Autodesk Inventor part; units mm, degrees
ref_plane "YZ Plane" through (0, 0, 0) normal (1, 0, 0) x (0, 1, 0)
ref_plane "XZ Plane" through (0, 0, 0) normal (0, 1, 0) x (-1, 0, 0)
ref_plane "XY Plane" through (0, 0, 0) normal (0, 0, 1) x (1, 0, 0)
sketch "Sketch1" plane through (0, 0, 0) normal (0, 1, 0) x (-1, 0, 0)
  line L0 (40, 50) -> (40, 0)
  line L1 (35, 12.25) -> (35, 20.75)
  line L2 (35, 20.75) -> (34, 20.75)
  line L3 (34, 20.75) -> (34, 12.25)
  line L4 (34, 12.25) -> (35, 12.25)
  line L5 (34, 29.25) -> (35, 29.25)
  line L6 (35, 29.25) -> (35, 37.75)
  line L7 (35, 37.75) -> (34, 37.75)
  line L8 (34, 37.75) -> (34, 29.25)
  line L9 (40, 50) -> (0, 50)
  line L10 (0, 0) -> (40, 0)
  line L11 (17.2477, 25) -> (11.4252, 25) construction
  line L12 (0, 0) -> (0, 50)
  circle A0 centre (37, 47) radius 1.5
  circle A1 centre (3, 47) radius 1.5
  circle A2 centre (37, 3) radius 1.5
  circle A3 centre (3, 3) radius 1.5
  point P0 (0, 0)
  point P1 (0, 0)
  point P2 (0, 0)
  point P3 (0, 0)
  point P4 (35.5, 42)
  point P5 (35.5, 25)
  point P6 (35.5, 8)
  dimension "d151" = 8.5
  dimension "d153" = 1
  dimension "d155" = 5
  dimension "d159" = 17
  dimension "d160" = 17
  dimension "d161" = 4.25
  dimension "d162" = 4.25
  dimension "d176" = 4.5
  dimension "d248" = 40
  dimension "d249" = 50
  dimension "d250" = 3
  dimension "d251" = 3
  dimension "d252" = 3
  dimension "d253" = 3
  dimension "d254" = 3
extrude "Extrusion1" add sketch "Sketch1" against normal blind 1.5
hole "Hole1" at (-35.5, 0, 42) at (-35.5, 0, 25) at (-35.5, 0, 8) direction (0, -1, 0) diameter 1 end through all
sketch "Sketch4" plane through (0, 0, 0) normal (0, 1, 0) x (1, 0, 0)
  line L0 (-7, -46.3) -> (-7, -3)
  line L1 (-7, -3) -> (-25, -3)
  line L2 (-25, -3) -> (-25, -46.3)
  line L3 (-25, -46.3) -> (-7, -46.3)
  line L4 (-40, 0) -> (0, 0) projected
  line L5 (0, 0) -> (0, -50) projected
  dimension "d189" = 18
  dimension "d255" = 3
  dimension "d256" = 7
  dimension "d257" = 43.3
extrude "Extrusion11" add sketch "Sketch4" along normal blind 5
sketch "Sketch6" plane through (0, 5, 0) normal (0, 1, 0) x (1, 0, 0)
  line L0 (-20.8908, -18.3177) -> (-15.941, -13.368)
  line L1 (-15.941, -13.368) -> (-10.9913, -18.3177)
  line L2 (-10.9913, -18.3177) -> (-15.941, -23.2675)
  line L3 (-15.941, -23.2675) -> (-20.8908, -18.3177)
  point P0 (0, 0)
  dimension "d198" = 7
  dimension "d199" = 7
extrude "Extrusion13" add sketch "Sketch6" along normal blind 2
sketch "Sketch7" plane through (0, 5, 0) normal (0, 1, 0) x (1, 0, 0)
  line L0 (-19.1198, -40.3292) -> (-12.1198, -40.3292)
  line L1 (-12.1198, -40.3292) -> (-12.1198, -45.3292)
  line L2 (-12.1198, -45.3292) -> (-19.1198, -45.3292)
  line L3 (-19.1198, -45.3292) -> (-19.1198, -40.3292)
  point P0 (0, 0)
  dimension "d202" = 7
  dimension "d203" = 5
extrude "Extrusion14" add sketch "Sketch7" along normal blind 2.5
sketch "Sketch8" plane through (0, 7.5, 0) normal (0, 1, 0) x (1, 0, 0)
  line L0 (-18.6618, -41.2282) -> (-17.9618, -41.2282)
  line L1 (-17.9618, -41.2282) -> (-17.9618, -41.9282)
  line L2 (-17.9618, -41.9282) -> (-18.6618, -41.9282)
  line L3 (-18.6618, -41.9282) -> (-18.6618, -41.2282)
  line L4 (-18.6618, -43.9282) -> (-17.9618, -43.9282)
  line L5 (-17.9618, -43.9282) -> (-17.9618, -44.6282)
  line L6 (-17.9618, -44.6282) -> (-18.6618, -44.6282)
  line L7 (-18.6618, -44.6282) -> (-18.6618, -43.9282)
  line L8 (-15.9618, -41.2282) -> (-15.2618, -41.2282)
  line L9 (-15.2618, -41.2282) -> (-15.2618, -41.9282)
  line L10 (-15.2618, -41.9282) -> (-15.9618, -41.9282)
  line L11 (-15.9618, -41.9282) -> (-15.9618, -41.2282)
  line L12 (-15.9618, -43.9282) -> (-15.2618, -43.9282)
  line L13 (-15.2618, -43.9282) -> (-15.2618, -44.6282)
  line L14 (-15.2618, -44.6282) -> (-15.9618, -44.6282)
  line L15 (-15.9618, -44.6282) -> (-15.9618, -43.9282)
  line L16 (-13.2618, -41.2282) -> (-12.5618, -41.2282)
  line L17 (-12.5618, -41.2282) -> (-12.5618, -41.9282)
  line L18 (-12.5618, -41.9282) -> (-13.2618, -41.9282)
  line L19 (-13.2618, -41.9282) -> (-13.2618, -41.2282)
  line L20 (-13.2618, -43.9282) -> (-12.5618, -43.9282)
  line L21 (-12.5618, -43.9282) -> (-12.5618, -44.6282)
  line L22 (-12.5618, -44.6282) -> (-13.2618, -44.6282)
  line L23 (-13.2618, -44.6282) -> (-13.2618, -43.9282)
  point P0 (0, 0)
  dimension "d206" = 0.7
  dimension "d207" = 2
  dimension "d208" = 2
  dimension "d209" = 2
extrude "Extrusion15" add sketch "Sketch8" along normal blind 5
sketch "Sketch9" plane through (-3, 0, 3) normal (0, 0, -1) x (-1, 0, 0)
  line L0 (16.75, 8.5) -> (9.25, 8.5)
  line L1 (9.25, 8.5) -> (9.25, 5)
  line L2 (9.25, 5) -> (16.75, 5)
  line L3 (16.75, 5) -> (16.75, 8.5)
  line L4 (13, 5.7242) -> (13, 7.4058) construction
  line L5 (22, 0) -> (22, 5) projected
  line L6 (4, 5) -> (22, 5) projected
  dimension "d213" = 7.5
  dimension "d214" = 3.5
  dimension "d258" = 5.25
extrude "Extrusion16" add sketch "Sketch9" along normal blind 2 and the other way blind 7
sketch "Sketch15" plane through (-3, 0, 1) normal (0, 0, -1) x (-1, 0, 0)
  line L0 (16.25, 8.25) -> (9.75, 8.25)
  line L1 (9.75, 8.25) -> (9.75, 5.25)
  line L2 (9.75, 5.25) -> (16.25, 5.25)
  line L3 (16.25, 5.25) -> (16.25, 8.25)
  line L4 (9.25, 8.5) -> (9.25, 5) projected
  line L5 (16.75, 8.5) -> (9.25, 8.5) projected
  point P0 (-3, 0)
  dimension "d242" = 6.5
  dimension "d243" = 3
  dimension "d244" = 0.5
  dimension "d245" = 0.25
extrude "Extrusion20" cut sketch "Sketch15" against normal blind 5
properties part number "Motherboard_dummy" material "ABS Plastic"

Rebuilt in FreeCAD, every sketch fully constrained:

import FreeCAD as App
import Part
import Sketcher
Q = App.Units.Quantity

doc = App.newDocument("Part")
body = doc.addObject("PartDesign::Body", "Body")

sketch1 = body.newObject("Sketcher::SketchObject", "Sketch")
sketch1.AttachmentSupport = (doc.getObject("XZ_Plane"), [""])
sketch1.MapMode = "FlatFace"
sketch1.addGeometry([
    Part.LineSegment(App.Vector(-40, 0, 0), App.Vector(-40, 50, 0)),
    Part.LineSegment(App.Vector(-40, 50, 0), App.Vector(0, 50, 0)),
    Part.LineSegment(App.Vector(0, 50, 0), App.Vector(0, 0, 0)),
    Part.LineSegment(App.Vector(0, 0, 0), App.Vector(-40, 0, 0)),
    Part.Circle(App.Vector(-3, 3, 0), App.Vector(0, 0, 1), 1.5),
    Part.Circle(App.Vector(-37, 3, 0), App.Vector(0, 0, 1), 1.5),
    Part.LineSegment(App.Vector(-35, 20.8, 0), App.Vector(-35, 12.2, 0)),
    Part.LineSegment(App.Vector(-35, 12.2, 0), App.Vector(-34, 12.2, 0)),
    Part.LineSegment(App.Vector(-34, 12.2, 0), App.Vector(-34, 20.8, 0)),
    Part.LineSegment(App.Vector(-34, 20.8, 0), App.Vector(-35, 20.8, 0)),
    Part.Circle(App.Vector(-3, 47, 0), App.Vector(0, 0, 1), 1.5),
    Part.LineSegment(App.Vector(-35, 29.2, 0), App.Vector(-34, 29.2, 0)),
    Part.LineSegment(App.Vector(-34, 29.2, 0), App.Vector(-34, 37.8, 0)),
    Part.LineSegment(App.Vector(-34, 37.8, 0), App.Vector(-35, 37.8, 0)),
    Part.LineSegment(App.Vector(-35, 37.8, 0), App.Vector(-35, 29.2, 0)),
    Part.Circle(App.Vector(-37, 47, 0), App.Vector(0, 0, 1), 1.5),
], False)
sketch1.addConstraint([
    Sketcher.Constraint("Coincident", 0, 2, 1, 1),
    Sketcher.Constraint("Coincident", 1, 2, 2, 1),
    Sketcher.Constraint("Coincident", 2, 2, 3, 1),
    Sketcher.Constraint("Coincident", 3, 2, 0, 1),
    Sketcher.Constraint("Coincident", 6, 2, 7, 1),
    Sketcher.Constraint("Coincident", 7, 2, 8, 1),
    Sketcher.Constraint("Coincident", 8, 2, 9, 1),
    Sketcher.Constraint("Coincident", 9, 2, 6, 1),
    Sketcher.Constraint("Coincident", 11, 2, 12, 1),
    Sketcher.Constraint("Coincident", 12, 2, 13, 1),
    Sketcher.Constraint("Coincident", 13, 2, 14, 1),
    Sketcher.Constraint("Coincident", 14, 2, 11, 1),
    Sketcher.Constraint("Vertical", 0),
    Sketcher.Constraint("Horizontal", 1),
    Sketcher.Constraint("Vertical", 2),
    Sketcher.Constraint("Horizontal", 3),
    Sketcher.Constraint("Vertical", 6),
    Sketcher.Constraint("Horizontal", 7),
    Sketcher.Constraint("Vertical", 8),
    Sketcher.Constraint("Horizontal", 9),
    Sketcher.Constraint("Horizontal", 11),
    Sketcher.Constraint("Vertical", 12),
    Sketcher.Constraint("Horizontal", 13),
    Sketcher.Constraint("Vertical", 14),
    Sketcher.Constraint("Coincident", 2, 2, -1, 1),
    Sketcher.Constraint("Equal", 4, 5),
    Sketcher.Constraint("Equal", 5, 10),
    Sketcher.Constraint("Equal", 10, 15),
    Sketcher.Constraint("Horizontal", 4, 3, 5, 3),
    Sketcher.Constraint("Horizontal", 10, 3, 15, 3),
    Sketcher.Constraint("Vertical", 4, 3, 10, 3),
    Sketcher.Constraint("Vertical", 5, 3, 15, 3),
    Sketcher.Constraint("Vertical", 8, 2, 11, 2),
    Sketcher.Constraint("Vertical", 9, 2, 13, 2),
    Sketcher.Constraint("Equal", 8, 12),
    Sketcher.Constraint("Diameter", 4, Q("3 mm")),
    Sketcher.Constraint("DistanceX", 1, 1, 1, 2, Q("40 mm")),
    Sketcher.Constraint("DistanceX", 7, 1, 7, 2, Q("1 mm")),
    Sketcher.Constraint("DistanceY", 0, 1, 0, 2, Q("50 mm")),
    Sketcher.Constraint("DistanceY", 6, 2, 6, 1, Q("8.5 mm")),
    Sketcher.Constraint("DistanceX", 4, 3, -1, 1, Q("3 mm")),
    Sketcher.Constraint("DistanceY", -1, 1, 4, 3, Q("3 mm")),
    Sketcher.Constraint("DistanceX", 0, 2, 15, 3, Q("3 mm")),
    Sketcher.Constraint("DistanceY", 15, 3, 0, 2, Q("3 mm")),
    Sketcher.Constraint("DistanceX", 3, 2, 6, 2, Q("5 mm")),
    Sketcher.Constraint("DistanceY", 7, 2, 11, 2, Q("17 mm")),
    Sketcher.Constraint("DistanceY", -1, 1, 6, 2, Q("12.25 mm")),
])
pad1 = body.newObject("PartDesign::Pad", "Pad")
pad1.Profile = sketch1
pad1.Length = 1.5

sketch2 = body.newObject("Sketcher::SketchObject", "Sketch001")
sketch2.AttachmentSupport = (doc.getObject("XZ_Plane"), [""])
sketch2.MapMode = "FlatFace"
sketch2.addGeometry([
    Part.Circle(App.Vector(-35.5, 42, 0), App.Vector(0, 0, 1), 0.5),
    Part.Circle(App.Vector(-35.5, 25, 0), App.Vector(0, 0, 1), 0.5),
    Part.Circle(App.Vector(-35.5, 8, 0), App.Vector(0, 0, 1), 0.5),
], False)
sketch2.addConstraint([
    Sketcher.Constraint("Equal", 0, 1),
    Sketcher.Constraint("Equal", 1, 2),
    Sketcher.Constraint("Vertical", 0, 3, 1, 3),
    Sketcher.Constraint("Vertical", 1, 3, 2, 3),
    Sketcher.Constraint("Diameter", 0, Q("1 mm")),
    Sketcher.Constraint("DistanceY", -1, 1, 0, 3, Q("42 mm")),
    Sketcher.Constraint("DistanceY", -1, 1, 1, 3, Q("25 mm")),
    Sketcher.Constraint("DistanceY", -1, 1, 2, 3, Q("8 mm")),
    Sketcher.Constraint("DistanceX", 0, 3, -1, 1, Q("35.5 mm")),
])
doc.recompute()
hole = body.newObject("PartDesign::Hole", "Hole")
hole.Profile = sketch2
hole.ThreadType = "None"
hole.Diameter = 1
hole.DepthType = "ThroughAll"
hole.Reversed = True

sketch3 = body.newObject("Sketcher::SketchObject", "Sketch002")
sketch3.AttachmentSupport = (doc.getObject("XZ_Plane"), [""])
sketch3.MapMode = "FlatFace"
sketch3.addGeometry([
    Part.LineSegment(App.Vector(-25, 46, 0), App.Vector(-7, 46, 0)),
    Part.LineSegment(App.Vector(-7, 46, 0), App.Vector(-7, 3, 0)),
    Part.LineSegment(App.Vector(-7, 3, 0), App.Vector(-25, 3, 0)),
    Part.LineSegment(App.Vector(-25, 3, 0), App.Vector(-25, 46, 0)),
], False)
sketch3.addConstraint([
    Sketcher.Constraint("Coincident", 0, 2, 1, 1),
    Sketcher.Constraint("Coincident", 1, 2, 2, 1),
    Sketcher.Constraint("Coincident", 2, 2, 3, 1),
    Sketcher.Constraint("Coincident", 3, 2, 0, 1),
    Sketcher.Constraint("Horizontal", 0),
    Sketcher.Constraint("Vertical", 1),
    Sketcher.Constraint("Horizontal", 2),
    Sketcher.Constraint("Vertical", 3),
    Sketcher.Constraint("DistanceX", 0, 1, 0, 2, Q("18 mm")),
    Sketcher.Constraint("DistanceY", 1, 2, 1, 1, Q("43.3 mm")),
    Sketcher.Constraint("DistanceX", 0, 2, -1, 1, Q("7 mm")),
    Sketcher.Constraint("DistanceY", -1, 1, 1, 2, Q("3 mm")),
])
pad2 = body.newObject("PartDesign::Pad", "Pad001")
pad2.Profile = sketch3
pad2.Length = 5
pad2.Reversed = True

sketch4 = body.newObject("Sketcher::SketchObject", "Sketch003")
sketch4.AttachmentSupport = (doc.getObject("XZ_Plane"), [""])
sketch4.MapMode = "FlatFace"
sketch4.AttachmentOffset = App.Placement(App.Vector(0, 0, -5), App.Rotation())
sketch4.addGeometry([
    Part.LineSegment(App.Vector(-16, 13, 0), App.Vector(-21, 18, 0)),
    Part.LineSegment(App.Vector(-21, 18, 0), App.Vector(-16, 23, 0)),
    Part.LineSegment(App.Vector(-16, 23, 0), App.Vector(-11, 18, 0)),
    Part.LineSegment(App.Vector(-11, 18, 0), App.Vector(-16, 13, 0)),
], False)
sketch4.addConstraint([
    Sketcher.Constraint("Coincident", 0, 2, 1, 1),
    Sketcher.Constraint("Coincident", 1, 2, 2, 1),
    Sketcher.Constraint("Coincident", 2, 2, 3, 1),
    Sketcher.Constraint("Coincident", 3, 2, 0, 1),
    Sketcher.Constraint("Perpendicular", 0, 1),
    Sketcher.Constraint("Perpendicular", 1, 2),
    Sketcher.Constraint("Perpendicular", 2, 3),
    Sketcher.Constraint("Horizontal", 0, 2, 2, 2),
    Sketcher.Constraint("Vertical", 1, 2, 3, 2),
    Sketcher.Constraint("Distance", 0, Q("7 mm")),
    Sketcher.Constraint("DistanceX", 1, 2, -1, 1, Q("15.941 mm")),
    Sketcher.Constraint("DistanceY", -1, 1, 3, 2, Q("13.368 mm")),
])
pad3 = body.newObject("PartDesign::Pad", "Pad002")
pad3.Profile = sketch4
pad3.Length = 2
pad3.Reversed = True

sketch5 = body.newObject("Sketcher::SketchObject", "Sketch004")
sketch5.AttachmentSupport = (doc.getObject("XZ_Plane"), [""])
sketch5.MapMode = "FlatFace"
sketch5.AttachmentOffset = App.Placement(App.Vector(0, 0, -5), App.Rotation())
sketch5.addGeometry([
    Part.LineSegment(App.Vector(-12, 40, 0), App.Vector(-19, 40, 0)),
    Part.LineSegment(App.Vector(-19, 40, 0), App.Vector(-19, 45, 0)),
    Part.LineSegment(App.Vector(-19, 45, 0), App.Vector(-12, 45, 0)),
    Part.LineSegment(App.Vector(-12, 45, 0), App.Vector(-12, 40, 0)),
], False)
sketch5.addConstraint([
    Sketcher.Constraint("Coincident", 0, 2, 1, 1),
    Sketcher.Constraint("Coincident", 1, 2, 2, 1),
    Sketcher.Constraint("Coincident", 2, 2, 3, 1),
    Sketcher.Constraint("Coincident", 3, 2, 0, 1),
    Sketcher.Constraint("Horizontal", 0),
    Sketcher.Constraint("Vertical", 1),
    Sketcher.Constraint("Horizontal", 2),
    Sketcher.Constraint("Vertical", 3),
    Sketcher.Constraint("DistanceX", 0, 2, 0, 1, Q("7 mm")),
    Sketcher.Constraint("DistanceY", 1, 1, 1, 2, Q("5 mm")),
    Sketcher.Constraint("DistanceX", 0, 2, -1, 1, Q("19.1198 mm")),
    Sketcher.Constraint("DistanceY", -1, 1, 0, 2, Q("40.3292 mm")),
])
pad4 = body.newObject("PartDesign::Pad", "Pad003")
pad4.Profile = sketch5
pad4.Length = 2.5
pad4.Reversed = True

sketch6 = body.newObject("Sketcher::SketchObject", "Sketch005")
sketch6.AttachmentSupport = (doc.getObject("XZ_Plane"), [""])
sketch6.MapMode = "FlatFace"
sketch6.AttachmentOffset = App.Placement(App.Vector(0, 0, -7.5), App.Rotation())
sketch6.addGeometry([
    Part.LineSegment(App.Vector(-18, 41.2, 0), App.Vector(-18.7, 41.2, 0)),
    Part.LineSegment(App.Vector(-18.7, 41.2, 0), App.Vector(-18.7, 41.9, 0)),
    Part.LineSegment(App.Vector(-18.7, 41.9, 0), App.Vector(-18, 41.9, 0)),
    Part.LineSegment(App.Vector(-18, 41.9, 0), App.Vector(-18, 41.2, 0)),
    Part.LineSegment(App.Vector(-18, 43.9, 0), App.Vector(-18.7, 43.9, 0)),
    Part.LineSegment(App.Vector(-18.7, 43.9, 0), App.Vector(-18.7, 44.6, 0)),
    Part.LineSegment(App.Vector(-18.7, 44.6, 0), App.Vector(-18, 44.6, 0)),
    Part.LineSegment(App.Vector(-18, 44.6, 0), App.Vector(-18, 43.9, 0)),
    Part.LineSegment(App.Vector(-15.3, 41.2, 0), App.Vector(-16, 41.2, 0)),
    Part.LineSegment(App.Vector(-16, 41.2, 0), App.Vector(-16, 41.9, 0)),
    Part.LineSegment(App.Vector(-16, 41.9, 0), App.Vector(-15.3, 41.9, 0)),
    Part.LineSegment(App.Vector(-15.3, 41.9, 0), App.Vector(-15.3, 41.2, 0)),
    Part.LineSegment(App.Vector(-15.3, 43.9, 0), App.Vector(-16, 43.9, 0)),
    Part.LineSegment(App.Vector(-16, 43.9, 0), App.Vector(-16, 44.6, 0)),
    Part.LineSegment(App.Vector(-16, 44.6, 0), App.Vector(-15.3, 44.6, 0)),
    Part.LineSegment(App.Vector(-15.3, 44.6, 0), App.Vector(-15.3, 43.9, 0)),
    Part.LineSegment(App.Vector(-12.6, 41.2, 0), App.Vector(-13.3, 41.2, 0)),
    Part.LineSegment(App.Vector(-13.3, 41.2, 0), App.Vector(-13.3, 41.9, 0)),
    Part.LineSegment(App.Vector(-13.3, 41.9, 0), App.Vector(-12.6, 41.9, 0)),
    Part.LineSegment(App.Vector(-12.6, 41.9, 0), App.Vector(-12.6, 41.2, 0)),
    Part.LineSegment(App.Vector(-12.6, 43.9, 0), App.Vector(-13.3, 43.9, 0)),
    Part.LineSegment(App.Vector(-13.3, 43.9, 0), App.Vector(-13.3, 44.6, 0)),
    Part.LineSegment(App.Vector(-13.3, 44.6, 0), App.Vector(-12.6, 44.6, 0)),
    Part.LineSegment(App.Vector(-12.6, 44.6, 0), App.Vector(-12.6, 43.9, 0)),
], False)
sketch6.addConstraint([
    Sketcher.Constraint("Coincident", 0, 2, 1, 1),
    Sketcher.Constraint("Coincident", 1, 2, 2, 1),
    Sketcher.Constraint("Coincident", 2, 2, 3, 1),
    Sketcher.Constraint("Coincident", 3, 2, 0, 1),
    Sketcher.Constraint("Coincident", 4, 2, 5, 1),
    Sketcher.Constraint("Coincident", 5, 2, 6, 1),
    Sketcher.Constraint("Coincident", 6, 2, 7, 1),
    Sketcher.Constraint("Coincident", 7, 2, 4, 1),
    Sketcher.Constraint("Coincident", 8, 2, 9, 1),
    Sketcher.Constraint("Coincident", 9, 2, 10, 1),
    Sketcher.Constraint("Coincident", 10, 2, 11, 1),
    Sketcher.Constraint("Coincident", 11, 2, 8, 1),
    Sketcher.Constraint("Coincident", 12, 2, 13, 1),
    Sketcher.Constraint("Coincident", 13, 2, 14, 1),
    Sketcher.Constraint("Coincident", 14, 2, 15, 1),
    Sketcher.Constraint("Coincident", 15, 2, 12, 1),
    Sketcher.Constraint("Coincident", 16, 2, 17, 1),
    Sketcher.Constraint("Coincident", 17, 2, 18, 1),
    Sketcher.Constraint("Coincident", 18, 2, 19, 1),
    Sketcher.Constraint("Coincident", 19, 2, 16, 1),
    Sketcher.Constraint("Coincident", 20, 2, 21, 1),
    Sketcher.Constraint("Coincident", 21, 2, 22, 1),
    Sketcher.Constraint("Coincident", 22, 2, 23, 1),
    Sketcher.Constraint("Coincident", 23, 2, 20, 1),
    Sketcher.Constraint("Horizontal", 0),
    Sketcher.Constraint("Vertical", 1),
    Sketcher.Constraint("Horizontal", 2),
    Sketcher.Constraint("Vertical", 3),
    Sketcher.Constraint("Horizontal", 4),
    Sketcher.Constraint("Vertical", 5),
    Sketcher.Constraint("Horizontal", 6),
    Sketcher.Constraint("Vertical", 7),
    Sketcher.Constraint("Horizontal", 8),
    Sketcher.Constraint("Vertical", 9),
    Sketcher.Constraint("Horizontal", 10),
    Sketcher.Constraint("Vertical", 11),
    Sketcher.Constraint("Horizontal", 12),
    Sketcher.Constraint("Vertical", 13),
    Sketcher.Constraint("Horizontal", 14),
    Sketcher.Constraint("Vertical", 15),
    Sketcher.Constraint("Horizontal", 16),
    Sketcher.Constraint("Vertical", 17),
    Sketcher.Constraint("Horizontal", 18),
    Sketcher.Constraint("Vertical", 19),
    Sketcher.Constraint("Horizontal", 20),
    Sketcher.Constraint("Vertical", 21),
    Sketcher.Constraint("Horizontal", 22),
    Sketcher.Constraint("Vertical", 23),
    Sketcher.Constraint("Horizontal", 3, 2, 8, 2),
    Sketcher.Constraint("Horizontal", 2, 2, 9, 2),
    Sketcher.Constraint("Horizontal", 7, 2, 12, 2),
    Sketcher.Constraint("Horizontal", 6, 2, 13, 2),
    Sketcher.Constraint("Horizontal", 11, 2, 16, 2),
    Sketcher.Constraint("Horizontal", 10, 2, 17, 2),
    Sketcher.Constraint("Horizontal", 15, 2, 20, 2),
    Sketcher.Constraint("Horizontal", 14, 2, 21, 2),
    Sketcher.Constraint("Vertical", 1, 2, 4, 2),
    Sketcher.Constraint("Vertical", 3, 2, 6, 2),
    Sketcher.Constraint("Vertical", 9, 2, 12, 2),
    Sketcher.Constraint("Vertical", 11, 2, 14, 2),
    Sketcher.Constraint("Vertical", 17, 2, 20, 2),
    Sketcher.Constraint("Vertical", 19, 2, 22, 2),
    Sketcher.Constraint("Equal", 6, 8),
    Sketcher.Constraint("Equal", 14, 16),
    Sketcher.Constraint("Equal", 22, 1),
    Sketcher.Constraint("Equal", 3, 5),
    Sketcher.Constraint("DistanceX", 0, 2, 0, 1, Q("0.7 mm")),
    Sketcher.Constraint("DistanceY", 1, 2, 4, 2, Q("2 mm")),
    Sketcher.Constraint("DistanceX", 3, 2, 8, 2, Q("2 mm")),
    Sketcher.Constraint("DistanceX", 11, 2, 16, 2, Q("2 mm")),
    Sketcher.Constraint("DistanceX", 0, 2, -1, 1, Q("18.6618 mm")),
    Sketcher.Constraint("DistanceY", -1, 1, 0, 2, Q("41.2282 mm")),
])
pad5 = body.newObject("PartDesign::Pad", "Pad004")
pad5.Profile = sketch6
pad5.Length = 5
pad5.Reversed = True

sketch7 = body.newObject("Sketcher::SketchObject", "Sketch006")
sketch7.AttachmentSupport = (doc.getObject("XY_Plane"), [""])
sketch7.MapMode = "FlatFace"
sketch7.AttachmentOffset = App.Placement(App.Vector(0, 0, 3), App.Rotation())
sketch7.addGeometry([
    Part.LineSegment(App.Vector(-19.8, 5, 0), App.Vector(-19.8, 8.5, 0)),
    Part.LineSegment(App.Vector(-19.8, 8.5, 0), App.Vector(-12.2, 8.5, 0)),
    Part.LineSegment(App.Vector(-12.2, 8.5, 0), App.Vector(-12.2, 5, 0)),
    Part.LineSegment(App.Vector(-12.2, 5, 0), App.Vector(-19.8, 5, 0)),
], False)
sketch7.addConstraint([
    Sketcher.Constraint("Coincident", 0, 2, 1, 1),
    Sketcher.Constraint("Coincident", 1, 2, 2, 1),
    Sketcher.Constraint("Coincident", 2, 2, 3, 1),
    Sketcher.Constraint("Coincident", 3, 2, 0, 1),
    Sketcher.Constraint("Vertical", 0),
    Sketcher.Constraint("Horizontal", 1),
    Sketcher.Constraint("Vertical", 2),
    Sketcher.Constraint("Horizontal", 3),
    Sketcher.Constraint("DistanceX", 1, 1, 1, 2, Q("7.5 mm")),
    Sketcher.Constraint("DistanceY", 0, 1, 0, 2, Q("3.5 mm")),
    Sketcher.Constraint("DistanceY", -1, 1, 2, 2, Q("5 mm")),
    Sketcher.Constraint("DistanceX", 0, 2, -1, 1, Q("19.75 mm")),
])
pad6 = body.newObject("PartDesign::Pad", "Pad005")
pad6.Profile = sketch7
pad6.Type = "TwoLengths"
pad6.Length = 2
pad6.Length2 = 7
pad6.Reversed = True

sketch8 = body.newObject("Sketcher::SketchObject", "Sketch007")
sketch8.AttachmentSupport = (doc.getObject("XY_Plane"), [""])
sketch8.MapMode = "FlatFace"
sketch8.AttachmentOffset = App.Placement(App.Vector(0, 0, 1), App.Rotation())
sketch8.addGeometry([
    Part.LineSegment(App.Vector(-19.2, 5.2, 0), App.Vector(-19.2, 8.2, 0)),
    Part.LineSegment(App.Vector(-19.2, 8.2, 0), App.Vector(-12.8, 8.2, 0)),
    Part.LineSegment(App.Vector(-12.8, 8.2, 0), App.Vector(-12.8, 5.2, 0)),
    Part.LineSegment(App.Vector(-12.8, 5.2, 0), App.Vector(-19.2, 5.2, 0)),
], False)
sketch8.addConstraint([
    Sketcher.Constraint("Coincident", 0, 2, 1, 1),
    Sketcher.Constraint("Coincident", 1, 2, 2, 1),
    Sketcher.Constraint("Coincident", 2, 2, 3, 1),
    Sketcher.Constraint("Coincident", 3, 2, 0, 1),
    Sketcher.Constraint("Vertical", 0),
    Sketcher.Constraint("Horizontal", 1),
    Sketcher.Constraint("Vertical", 2),
    Sketcher.Constraint("Horizontal", 3),
    Sketcher.Constraint("DistanceY", 0, 1, 0, 2, Q("3 mm")),
    Sketcher.Constraint("DistanceX", 1, 1, 1, 2, Q("6.5 mm")),
    Sketcher.Constraint("DistanceX", 0, 2, -1, 1, Q("19.25 mm")),
    Sketcher.Constraint("DistanceY", -1, 1, 0, 2, Q("8.25 mm")),
])
pocket1 = body.newObject("PartDesign::Pocket", "Pocket")
pocket1.Profile = sketch8
pocket1.Length = 5
pocket1.Reversed = True

doc.recompute()
